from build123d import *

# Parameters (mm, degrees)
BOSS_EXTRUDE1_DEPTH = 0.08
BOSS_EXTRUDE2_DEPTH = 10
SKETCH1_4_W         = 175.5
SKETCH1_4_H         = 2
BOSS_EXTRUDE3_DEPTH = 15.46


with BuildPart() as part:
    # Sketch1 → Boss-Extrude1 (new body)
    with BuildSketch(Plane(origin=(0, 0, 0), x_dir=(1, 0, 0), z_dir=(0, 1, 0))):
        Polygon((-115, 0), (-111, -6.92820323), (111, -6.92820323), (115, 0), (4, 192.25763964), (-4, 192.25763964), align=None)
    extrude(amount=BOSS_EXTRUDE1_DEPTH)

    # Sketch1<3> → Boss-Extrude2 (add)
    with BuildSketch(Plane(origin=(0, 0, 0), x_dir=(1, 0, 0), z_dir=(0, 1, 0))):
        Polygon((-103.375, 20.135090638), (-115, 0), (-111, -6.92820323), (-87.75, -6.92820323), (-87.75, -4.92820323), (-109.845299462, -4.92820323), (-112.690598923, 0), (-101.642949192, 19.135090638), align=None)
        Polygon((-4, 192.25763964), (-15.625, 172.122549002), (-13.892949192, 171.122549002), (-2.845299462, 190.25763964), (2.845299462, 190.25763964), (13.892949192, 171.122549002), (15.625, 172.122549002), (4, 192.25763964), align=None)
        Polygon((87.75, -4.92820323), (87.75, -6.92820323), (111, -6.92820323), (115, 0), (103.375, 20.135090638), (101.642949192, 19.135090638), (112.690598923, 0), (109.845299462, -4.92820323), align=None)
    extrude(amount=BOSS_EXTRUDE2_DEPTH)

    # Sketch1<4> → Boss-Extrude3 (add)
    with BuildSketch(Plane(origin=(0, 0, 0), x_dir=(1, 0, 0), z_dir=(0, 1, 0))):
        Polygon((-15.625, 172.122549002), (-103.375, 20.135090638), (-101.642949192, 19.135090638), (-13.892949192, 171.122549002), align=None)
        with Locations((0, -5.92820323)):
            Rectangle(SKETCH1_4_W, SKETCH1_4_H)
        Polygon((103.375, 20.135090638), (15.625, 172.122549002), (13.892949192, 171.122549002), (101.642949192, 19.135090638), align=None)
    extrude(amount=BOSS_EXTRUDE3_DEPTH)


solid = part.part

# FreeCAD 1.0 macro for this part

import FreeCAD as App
import Part
import Sketcher
from FreeCAD import Vector
Q = App.Units.Quantity


def add_polygon(sketch, points):
    """Adds a closed chain of lines whose ends are joined by coincident constraints."""
    first, n = sketch.GeometryCount, len(points)
    for a, b in zip(points, points[1:] + points[:1]):
        sketch.addGeometry(Part.LineSegment(App.Vector(*a, 0), App.Vector(*b, 0)), False)
    for i in range(n):
        sketch.addConstraint(Sketcher.Constraint("Coincident", first + i, 2, first + (i + 1) % n, 1))

doc = App.newDocument("Part")
params = doc.addObject("Spreadsheet::Sheet", "Params")
for row, (alias, value) in enumerate([
    ("sketch1_width", "222 mm"),
    ("sketch1_width2", "8 mm"),
    ("sketch1_length", "8 mm"),
    ("pad1_length", "0.08 mm"),
    ("sketch2_width", "8 mm"),
    ("sketch2_height", "2 mm"),
    ("sketch2_length", "8 mm"),
    ("sketch2_length2", "2 mm"),
    ("sketch2_width2", "23.25 mm"),
    ("pad2_length", "10 mm"),
    ("sketch3_height", "2 mm"),
    ("sketch3_length", "2 mm"),
    ("sketch3_width", "175.5 mm"),
    ("sketch3_length2", "175.5 mm"),
    ("pad3_length", "15.46 mm"),
], start=1):
    params.set(f"A{row}", alias)
    params.set(f"B{row}", "=" + value)
    params.setAlias(f"B{row}", alias)

body = doc.addObject("PartDesign::Body", "Body")

# Sketch on XZ plane
sketch1 = body.newObject("Sketcher::SketchObject", "Sketch")
sketch1.AttachmentSupport = (doc.getObject("XZ_Plane"), [""])
sketch1.MapMode = "FlatFace"
add_polygon(sketch1, [(-115, 0), (-111, 6.928203), (111, 6.928203), (115, 0), (4, -192.25764), (-4, -192.25764)])  # lines 0-5
sketch1.addConstraint([
    Sketcher.Constraint("Horizontal", 1),
    Sketcher.Constraint("Horizontal", 4),
    Sketcher.Constraint("Symmetric", 2, 2, 5, 2, -1, 1),
    Sketcher.Constraint("PointOnObject", 2, 2, -1),
    Sketcher.Constraint("Parallel", 0, 3),
    Sketcher.Constraint("Parallel", 2, 5),
    Sketcher.Constraint("Equal", 0, 2),
    Sketcher.Constraint("DistanceX", 1, 1, 1, 2, 222.0),
    Sketcher.Constraint("DistanceX", 4, 2, 4, 1, 8.0),
    Sketcher.Constraint("Angle", 0, Q("60 deg")),
    Sketcher.Constraint("Distance", 0, 8.0),
])
sketch1.setExpression("Constraints[13]", "Params.sketch1_width")
sketch1.setExpression("Constraints[14]", "Params.sketch1_width2")
sketch1.setExpression("Constraints[16]", "Params.sketch1_length")
pad1 = body.newObject("PartDesign::Pad", "Pad")
pad1.Profile = sketch1
pad1.setExpression("Length", "Params.pad1_length")
pad1.Reversed = True

# Sketch on XZ plane
sketch2 = body.newObject("Sketcher::SketchObject", "Sketch001")
sketch2.AttachmentSupport = (doc.getObject("XZ_Plane"), [""])
sketch2.MapMode = "FlatFace"
add_polygon(sketch2, [(-103.375, -20.135091), (-115, 0), (-111, 6.928203), (-87.75, 6.928203), (-87.75, 4.928203), (-109.845299, 4.928203), (-112.690599, 0), (-101.642949, -19.135091)])  # lines 0-7
add_polygon(sketch2, [(-4, -192.25764), (-15.625, -172.122549), (-13.892949, -171.122549), (-2.845299, -190.25764), (2.845299, -190.25764), (13.892949, -171.122549), (15.625, -172.122549), (4, -192.25764)])  # lines 8-15
add_polygon(sketch2, [(87.75, 4.928203), (87.75, 6.928203), (111, 6.928203), (115, 0), (103.375, -20.135091), (101.642949, -19.135091), (112.690599, 0), (109.845299, 4.928203)])  # lines 16-23
sketch2.addConstraint([
    Sketcher.Constraint("Horizontal", 2),
    Sketcher.Constraint("Vertical", 3),
    Sketcher.Constraint("Horizontal", 4),
    Sketcher.Constraint("Horizontal", 11),
    Sketcher.Constraint("Horizontal", 15),
    Sketcher.Constraint("Vertical", 16),
    Sketcher.Constraint("Horizontal", 17),
    Sketcher.Constraint("Horizontal", 23),
    Sketcher.Constraint("Symmetric", 0, 2, 18, 2, -1, 1),
    Sketcher.Constraint("Symmetric", 5, 2, 21, 2, -1, 1),
    Sketcher.Constraint("Symmetric", 9, 2, 12, 2, -2),
    Sketcher.Constraint("Symmetric", 8, 2, 13, 2, -2),
    Sketcher.Constraint("Symmetric", 2, 2, 16, 2, -2),
    Sketcher.Constraint("Symmetric", 7, 2, 19, 2, -2),
    Sketcher.Constraint("Symmetric", 6, 2, 20, 2, -2),
    Sketcher.Constraint("Symmetric", 4, 2, 22, 2, -2),
    Sketcher.Constraint("PointOnObject", 0, 2, -1),
    Sketcher.Constraint("PointOnObject", 5, 2, -1),
    Sketcher.Constraint("Parallel", 1, 5),
    Sketcher.Constraint("Parallel", 0, 6),
    Sketcher.Constraint("Perpendicular", 6, 7),
    Sketcher.Constraint("Perpendicular", 7, 8),
    Sketcher.Constraint("Perpendicular", 8, 9),
    Sketcher.Constraint("Perpendicular", 9, 10),
    Sketcher.Constraint("Parallel", 5, 12),
    Sketcher.Constraint("Perpendicular", 12, 13),
    Sketcher.Constraint("Perpendicular", 13, 14),
    Sketcher.Constraint("Parallel", 10, 18),
    Sketcher.Constraint("Equal", 0, 8),
    Sketcher.Constraint("Equal", 7, 9),
    Sketcher.Constraint("Equal", 6, 10),
    Sketcher.Constraint("DistanceX", 15, 2, 15, 1, 8.0),
    Sketcher.Constraint("DistanceY", 3, 2, 3, 1, 2.0),
    Sketcher.Constraint("Angle", 0, Q("120 deg")),
    Sketcher.Constraint("Distance", 1, 8.0),
    Sketcher.Constraint("Distance", 7, 2.0),
    Sketcher.Constraint("DistanceX", 0, 2, -1, 1, 115.0),
    Sketcher.Constraint("DistanceX", 2, 1, 2, 2, 23.25),
    Sketcher.Constraint("Distance", 0, 23.25),
    Sketcher.Constraint("DistanceY", 8, 2, -1, 1, 172.122549),
])
sketch2.setExpression("Constraints[55]", "Params.sketch2_width")
sketch2.setExpression("Constraints[56]", "Params.sketch2_height")
sketch2.setExpression("Constraints[58]", "Params.sketch2_length")
sketch2.setExpression("Constraints[59]", "Params.sketch2_length2")
sketch2.setExpression("Constraints[61]", "Params.sketch2_width2")
pad2 = body.newObject("PartDesign::Pad", "Pad001")
pad2.Profile = sketch2
pad2.setExpression("Length", "Params.pad2_length")
pad2.Reversed = True

# Sketch on XZ plane
sketch3 = body.newObject("Sketcher::SketchObject", "Sketch002")
sketch3.AttachmentSupport = (doc.getObject("XZ_Plane"), [""])
sketch3.MapMode = "FlatFace"
add_polygon(sketch3, [(-15.625, -172.122549), (-103.375, -20.135091), (-101.642949, -19.135091), (-13.892949, -171.122549)])  # lines 0-3
add_polygon(sketch3, [(-87.75, 4.928203), (-87.75, 6.928203), (87.75, 6.928203), (87.75, 4.928203)])  # lines 4-7
add_polygon(sketch3, [(103.375, -20.135091), (15.625, -172.122549), (13.892949, -171.122549), (101.642949, -19.135091)])  # lines 8-11
sketch3.addConstraint([
    Sketcher.Constraint("Vertical", 4),
    Sketcher.Constraint("Horizontal", 5),
    Sketcher.Constraint("Vertical", 6),
    Sketcher.Constraint("Horizontal", 7),
    Sketcher.Constraint("Symmetric", 3, 2, 8, 2, -2),
    Sketcher.Constraint("Symmetric", 2, 2, 9, 2, -2),
    Sketcher.Constraint("Symmetric", 1, 2, 10, 2, -2),
    Sketcher.Constraint("Symmetric", 0, 2, 11, 2, -2),
    Sketcher.Constraint("Perpendicular", 0, 1),
    Sketcher.Constraint("Perpendicular", 1, 2),
    Sketcher.Constraint("Perpendicular", 2, 3),
    Sketcher.Constraint("DistanceY", 4, 1, 4, 2, 2.0),
    Sketcher.Constraint("Angle", 0, Q("120 deg")),
    Sketcher.Constraint("Distance", 1, 2.0),
    Sketcher.Constraint("DistanceX", 5, 1, 5, 2, 175.5),
    Sketcher.Constraint("Distance", 0, 175.5),
    Sketcher.Constraint("DistanceX", 4, 2, -1, 1, 87.75),
    Sketcher.Constraint("DistanceX", 3, 2, 8, 2, 31.25),
    Sketcher.Constraint("DistanceY", 0, 2, -1, 1, 20.135091),
    Sketcher.Constraint("DistanceY", -1, 1, 4, 2, 6.928203),
])
sketch3.setExpression("Constraints[23]", "Params.sketch3_height")
sketch3.setExpression("Constraints[25]", "Params.sketch3_length")
sketch3.setExpression("Constraints[26]", "Params.sketch3_width")
sketch3.setExpression("Constraints[27]", "Params.sketch3_length2")
pad3 = body.newObject("PartDesign::Pad", "Pad002")
pad3.Profile = sketch3
pad3.setExpression("Length", "Params.pad3_length")
pad3.Reversed = True

doc.recompute()
